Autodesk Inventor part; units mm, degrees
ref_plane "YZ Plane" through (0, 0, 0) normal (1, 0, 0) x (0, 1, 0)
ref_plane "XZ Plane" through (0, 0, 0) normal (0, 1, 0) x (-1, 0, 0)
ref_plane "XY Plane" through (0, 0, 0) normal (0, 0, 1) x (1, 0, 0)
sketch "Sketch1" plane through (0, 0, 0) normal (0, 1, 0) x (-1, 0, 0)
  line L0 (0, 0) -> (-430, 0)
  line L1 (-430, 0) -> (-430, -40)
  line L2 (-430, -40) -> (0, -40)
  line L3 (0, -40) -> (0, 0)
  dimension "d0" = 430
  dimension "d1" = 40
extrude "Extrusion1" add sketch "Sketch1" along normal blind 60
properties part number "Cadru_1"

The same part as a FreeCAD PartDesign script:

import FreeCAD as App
import Part
import Sketcher
Q = App.Units.Quantity

doc = App.newDocument("Part")
body = doc.addObject("PartDesign::Body", "Body")

# Sketch on XZ plane
sketch1 = body.newObject("Sketcher::SketchObject", "Sketch")
sketch1.AttachmentSupport = (doc.getObject("XZ_Plane"), [""])
sketch1.MapMode = "FlatFace"
sketch1.addGeometry([
    Part.LineSegment(App.Vector(0, -40, 0), App.Vector(0, 0, 0)),
    Part.LineSegment(App.Vector(0, 0, 0), App.Vector(430, 0, 0)),
    Part.LineSegment(App.Vector(430, 0, 0), App.Vector(430, -40, 0)),
    Part.LineSegment(App.Vector(430, -40, 0), App.Vector(0, -40, 0)),
], False)
sketch1.addConstraint([
    Sketcher.Constraint("Coincident", 0, 2, 1, 1),
    Sketcher.Constraint("Coincident", 1, 2, 2, 1),
    Sketcher.Constraint("Coincident", 2, 2, 3, 1),
    Sketcher.Constraint("Coincident", 3, 2, 0, 1),
    Sketcher.Constraint("Vertical", 0),
    Sketcher.Constraint("Horizontal", 1),
    Sketcher.Constraint("Vertical", 2),
    Sketcher.Constraint("Horizontal", 3),
    Sketcher.Constraint("Coincident", 0, 2, -1, 1),
    Sketcher.Constraint("DistanceX", 1, 1, 1, 2, Q("430 mm")),
    Sketcher.Constraint("DistanceY", 0, 1, 0, 2, Q("40 mm")),
])
pad1 = body.newObject("PartDesign::Pad", "Pad")
pad1.Profile = sketch1
pad1.Length = 60
pad1.Reversed = True

doc.recompute()
